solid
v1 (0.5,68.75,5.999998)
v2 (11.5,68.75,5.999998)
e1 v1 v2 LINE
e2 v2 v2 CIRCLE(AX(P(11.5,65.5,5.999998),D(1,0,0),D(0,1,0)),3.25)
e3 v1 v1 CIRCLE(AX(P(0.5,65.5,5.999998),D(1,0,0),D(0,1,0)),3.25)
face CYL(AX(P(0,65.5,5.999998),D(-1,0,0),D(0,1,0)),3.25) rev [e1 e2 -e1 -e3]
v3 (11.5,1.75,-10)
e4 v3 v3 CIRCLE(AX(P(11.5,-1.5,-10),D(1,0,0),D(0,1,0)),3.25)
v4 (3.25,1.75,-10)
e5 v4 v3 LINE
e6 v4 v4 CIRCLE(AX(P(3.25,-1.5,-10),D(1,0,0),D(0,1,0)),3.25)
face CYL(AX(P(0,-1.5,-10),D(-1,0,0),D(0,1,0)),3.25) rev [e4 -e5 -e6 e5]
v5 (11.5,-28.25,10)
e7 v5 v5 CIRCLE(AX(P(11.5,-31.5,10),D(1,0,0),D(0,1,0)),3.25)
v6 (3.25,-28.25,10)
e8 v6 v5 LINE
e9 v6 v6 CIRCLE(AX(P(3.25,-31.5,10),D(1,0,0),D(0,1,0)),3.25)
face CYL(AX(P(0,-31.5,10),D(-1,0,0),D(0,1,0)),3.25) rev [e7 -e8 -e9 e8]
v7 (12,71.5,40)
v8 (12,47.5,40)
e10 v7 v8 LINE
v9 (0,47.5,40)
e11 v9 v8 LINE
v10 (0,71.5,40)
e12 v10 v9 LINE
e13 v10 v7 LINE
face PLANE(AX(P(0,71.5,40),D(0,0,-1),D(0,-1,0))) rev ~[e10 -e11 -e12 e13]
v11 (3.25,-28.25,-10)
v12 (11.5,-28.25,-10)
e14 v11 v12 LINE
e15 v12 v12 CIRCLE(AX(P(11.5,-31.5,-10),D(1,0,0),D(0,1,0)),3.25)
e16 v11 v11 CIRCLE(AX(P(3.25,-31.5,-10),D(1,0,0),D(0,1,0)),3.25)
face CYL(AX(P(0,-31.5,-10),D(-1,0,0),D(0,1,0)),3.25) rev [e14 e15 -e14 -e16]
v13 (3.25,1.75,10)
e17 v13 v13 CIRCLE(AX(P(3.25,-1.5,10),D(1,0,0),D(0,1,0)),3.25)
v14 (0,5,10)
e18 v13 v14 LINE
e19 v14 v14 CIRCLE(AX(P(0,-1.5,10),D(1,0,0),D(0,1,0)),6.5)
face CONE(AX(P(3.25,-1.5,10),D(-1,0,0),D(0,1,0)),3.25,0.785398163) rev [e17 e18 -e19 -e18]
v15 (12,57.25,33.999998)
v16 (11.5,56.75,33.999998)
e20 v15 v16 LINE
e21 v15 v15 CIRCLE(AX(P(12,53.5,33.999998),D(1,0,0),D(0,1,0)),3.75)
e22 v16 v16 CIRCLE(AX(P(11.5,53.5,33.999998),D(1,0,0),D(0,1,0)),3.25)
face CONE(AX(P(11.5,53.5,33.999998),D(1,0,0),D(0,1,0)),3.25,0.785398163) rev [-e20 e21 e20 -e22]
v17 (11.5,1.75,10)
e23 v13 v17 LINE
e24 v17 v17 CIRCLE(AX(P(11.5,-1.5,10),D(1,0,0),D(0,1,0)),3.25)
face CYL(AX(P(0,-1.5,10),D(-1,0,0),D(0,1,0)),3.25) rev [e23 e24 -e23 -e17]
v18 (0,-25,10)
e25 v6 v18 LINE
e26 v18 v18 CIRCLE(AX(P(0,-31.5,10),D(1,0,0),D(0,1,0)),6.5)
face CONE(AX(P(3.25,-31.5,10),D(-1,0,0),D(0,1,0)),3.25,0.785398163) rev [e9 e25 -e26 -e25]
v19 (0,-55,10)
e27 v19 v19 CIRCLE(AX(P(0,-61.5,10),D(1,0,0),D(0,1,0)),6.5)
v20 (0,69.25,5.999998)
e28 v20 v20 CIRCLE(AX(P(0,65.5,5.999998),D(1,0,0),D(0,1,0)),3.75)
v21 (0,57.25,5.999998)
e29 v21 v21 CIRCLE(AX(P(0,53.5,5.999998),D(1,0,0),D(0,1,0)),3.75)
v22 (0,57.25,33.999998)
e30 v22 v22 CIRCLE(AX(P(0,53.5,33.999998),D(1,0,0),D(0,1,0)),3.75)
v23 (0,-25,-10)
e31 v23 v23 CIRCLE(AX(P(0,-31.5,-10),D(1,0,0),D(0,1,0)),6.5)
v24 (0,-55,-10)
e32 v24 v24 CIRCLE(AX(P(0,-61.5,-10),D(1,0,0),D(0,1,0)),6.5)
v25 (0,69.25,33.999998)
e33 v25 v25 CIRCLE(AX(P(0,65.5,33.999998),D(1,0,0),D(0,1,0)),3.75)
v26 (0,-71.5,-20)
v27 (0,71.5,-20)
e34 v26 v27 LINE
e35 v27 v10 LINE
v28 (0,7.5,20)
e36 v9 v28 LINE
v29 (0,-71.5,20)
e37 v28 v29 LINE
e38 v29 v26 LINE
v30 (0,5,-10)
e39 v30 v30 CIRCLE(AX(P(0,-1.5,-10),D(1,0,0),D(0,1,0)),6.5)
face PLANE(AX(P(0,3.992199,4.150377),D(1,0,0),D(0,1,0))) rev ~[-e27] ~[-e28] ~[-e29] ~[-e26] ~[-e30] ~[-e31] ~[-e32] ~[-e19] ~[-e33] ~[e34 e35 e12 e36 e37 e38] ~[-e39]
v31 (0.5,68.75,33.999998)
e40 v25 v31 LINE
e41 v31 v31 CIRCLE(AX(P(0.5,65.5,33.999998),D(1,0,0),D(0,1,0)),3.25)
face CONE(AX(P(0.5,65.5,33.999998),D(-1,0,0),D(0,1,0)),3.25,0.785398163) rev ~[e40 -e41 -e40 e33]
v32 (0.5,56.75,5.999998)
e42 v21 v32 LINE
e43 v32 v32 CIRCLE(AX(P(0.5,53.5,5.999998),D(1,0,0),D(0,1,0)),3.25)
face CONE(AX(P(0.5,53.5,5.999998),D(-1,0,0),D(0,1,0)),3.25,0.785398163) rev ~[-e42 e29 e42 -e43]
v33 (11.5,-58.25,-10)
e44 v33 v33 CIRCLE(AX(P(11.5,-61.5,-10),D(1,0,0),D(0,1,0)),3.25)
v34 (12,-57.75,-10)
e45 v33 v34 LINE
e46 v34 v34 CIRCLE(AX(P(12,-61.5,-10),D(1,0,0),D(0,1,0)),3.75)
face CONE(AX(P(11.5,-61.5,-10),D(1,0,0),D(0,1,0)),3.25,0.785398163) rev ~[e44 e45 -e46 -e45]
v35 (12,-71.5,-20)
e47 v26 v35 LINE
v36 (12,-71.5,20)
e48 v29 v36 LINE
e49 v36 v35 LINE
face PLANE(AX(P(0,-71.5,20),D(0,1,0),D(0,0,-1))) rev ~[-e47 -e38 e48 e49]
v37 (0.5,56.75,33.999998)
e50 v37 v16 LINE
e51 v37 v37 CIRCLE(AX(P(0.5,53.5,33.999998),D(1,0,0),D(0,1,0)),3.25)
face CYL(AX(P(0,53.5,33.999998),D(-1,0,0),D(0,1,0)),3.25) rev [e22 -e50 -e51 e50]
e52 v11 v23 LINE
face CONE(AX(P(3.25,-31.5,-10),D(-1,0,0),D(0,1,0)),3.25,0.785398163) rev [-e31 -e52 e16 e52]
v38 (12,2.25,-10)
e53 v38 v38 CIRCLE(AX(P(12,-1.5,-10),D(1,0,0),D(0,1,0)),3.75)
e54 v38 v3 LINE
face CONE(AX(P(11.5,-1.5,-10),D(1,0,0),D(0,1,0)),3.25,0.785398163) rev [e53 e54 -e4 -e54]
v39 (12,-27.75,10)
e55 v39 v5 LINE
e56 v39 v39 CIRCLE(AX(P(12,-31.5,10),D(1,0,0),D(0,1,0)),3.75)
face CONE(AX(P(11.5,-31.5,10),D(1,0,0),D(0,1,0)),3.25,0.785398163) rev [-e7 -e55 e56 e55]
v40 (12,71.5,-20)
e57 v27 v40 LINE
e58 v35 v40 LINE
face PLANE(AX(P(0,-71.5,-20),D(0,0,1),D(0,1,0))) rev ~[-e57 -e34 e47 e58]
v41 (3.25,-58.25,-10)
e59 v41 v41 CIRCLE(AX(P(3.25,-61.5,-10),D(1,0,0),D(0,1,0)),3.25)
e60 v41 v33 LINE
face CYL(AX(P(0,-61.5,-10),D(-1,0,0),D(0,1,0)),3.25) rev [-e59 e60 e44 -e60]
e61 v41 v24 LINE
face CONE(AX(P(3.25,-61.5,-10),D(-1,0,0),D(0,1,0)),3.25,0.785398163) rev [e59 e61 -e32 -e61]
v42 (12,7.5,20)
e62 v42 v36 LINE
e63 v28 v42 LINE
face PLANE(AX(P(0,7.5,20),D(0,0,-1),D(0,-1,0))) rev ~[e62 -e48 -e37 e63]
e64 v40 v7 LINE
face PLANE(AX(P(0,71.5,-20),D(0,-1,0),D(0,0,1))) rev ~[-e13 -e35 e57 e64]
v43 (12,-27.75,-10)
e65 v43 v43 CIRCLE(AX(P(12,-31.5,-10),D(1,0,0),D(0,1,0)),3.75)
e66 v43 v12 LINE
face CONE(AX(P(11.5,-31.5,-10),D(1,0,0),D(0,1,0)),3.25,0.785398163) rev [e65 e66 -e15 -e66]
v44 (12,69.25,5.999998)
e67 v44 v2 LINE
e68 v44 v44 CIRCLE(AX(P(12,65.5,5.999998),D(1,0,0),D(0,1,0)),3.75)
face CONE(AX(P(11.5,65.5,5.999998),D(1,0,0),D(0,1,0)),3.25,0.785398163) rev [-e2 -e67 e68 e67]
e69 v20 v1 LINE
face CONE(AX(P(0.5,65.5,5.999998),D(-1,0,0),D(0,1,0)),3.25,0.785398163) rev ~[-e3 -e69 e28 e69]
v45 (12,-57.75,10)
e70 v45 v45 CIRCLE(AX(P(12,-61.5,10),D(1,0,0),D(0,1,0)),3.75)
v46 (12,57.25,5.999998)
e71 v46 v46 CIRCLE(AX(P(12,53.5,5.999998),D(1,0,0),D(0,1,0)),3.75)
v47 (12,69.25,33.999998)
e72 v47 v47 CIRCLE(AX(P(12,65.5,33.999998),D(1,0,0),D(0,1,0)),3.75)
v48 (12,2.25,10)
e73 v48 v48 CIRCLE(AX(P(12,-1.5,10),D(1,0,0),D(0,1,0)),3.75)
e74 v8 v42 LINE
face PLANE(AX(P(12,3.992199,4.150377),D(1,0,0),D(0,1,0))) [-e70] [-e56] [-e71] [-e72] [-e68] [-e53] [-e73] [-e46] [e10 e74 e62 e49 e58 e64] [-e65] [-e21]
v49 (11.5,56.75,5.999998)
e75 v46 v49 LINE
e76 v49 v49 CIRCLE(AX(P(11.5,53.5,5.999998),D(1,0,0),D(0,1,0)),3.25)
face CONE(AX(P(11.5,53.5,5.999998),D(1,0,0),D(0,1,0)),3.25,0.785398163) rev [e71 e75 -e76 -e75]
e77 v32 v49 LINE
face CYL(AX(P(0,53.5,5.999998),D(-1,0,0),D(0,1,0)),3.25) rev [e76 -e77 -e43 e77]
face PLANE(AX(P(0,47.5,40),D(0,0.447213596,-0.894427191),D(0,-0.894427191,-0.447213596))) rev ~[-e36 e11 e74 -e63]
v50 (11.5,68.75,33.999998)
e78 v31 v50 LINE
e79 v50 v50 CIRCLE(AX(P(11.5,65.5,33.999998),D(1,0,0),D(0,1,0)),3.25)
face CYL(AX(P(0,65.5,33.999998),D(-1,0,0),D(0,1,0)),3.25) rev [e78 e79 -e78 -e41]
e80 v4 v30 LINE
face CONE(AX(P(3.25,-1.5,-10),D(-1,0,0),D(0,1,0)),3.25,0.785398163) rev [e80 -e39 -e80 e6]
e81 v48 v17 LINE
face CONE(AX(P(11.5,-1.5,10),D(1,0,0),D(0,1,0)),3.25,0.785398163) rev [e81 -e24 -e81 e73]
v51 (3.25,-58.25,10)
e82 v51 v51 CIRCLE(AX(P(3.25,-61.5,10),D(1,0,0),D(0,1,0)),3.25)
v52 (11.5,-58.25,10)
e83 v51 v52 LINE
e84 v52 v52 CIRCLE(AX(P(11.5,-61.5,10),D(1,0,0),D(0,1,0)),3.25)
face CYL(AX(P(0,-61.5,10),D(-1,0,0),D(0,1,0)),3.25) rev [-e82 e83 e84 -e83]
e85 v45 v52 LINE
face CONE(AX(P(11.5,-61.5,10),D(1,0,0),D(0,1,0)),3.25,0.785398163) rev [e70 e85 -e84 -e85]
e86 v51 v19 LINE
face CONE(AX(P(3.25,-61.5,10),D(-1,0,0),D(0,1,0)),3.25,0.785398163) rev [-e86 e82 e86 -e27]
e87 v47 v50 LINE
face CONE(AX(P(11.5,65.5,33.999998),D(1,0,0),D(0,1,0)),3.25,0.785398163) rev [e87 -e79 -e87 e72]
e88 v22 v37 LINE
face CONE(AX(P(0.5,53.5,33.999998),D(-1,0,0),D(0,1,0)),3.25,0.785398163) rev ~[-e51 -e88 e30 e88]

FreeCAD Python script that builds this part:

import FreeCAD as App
import Part
import Sketcher
from FreeCAD import Vector
Q = App.Units.Quantity


def edges_at(feature, points):
    """Names of the edges that pass closest to the given points."""
    edges = feature.Shape.Edges
    near = lambda p: min(range(len(edges)), key=lambda i: edges[i].distToShape(Part.Vertex(*p))[0])
    return sorted({f"Edge{near(p) + 1}" for p in points})


def add_polygon(sketch, points):
    """Adds a closed chain of lines whose ends are joined by coincident constraints."""
    first, n = sketch.GeometryCount, len(points)
    for a, b in zip(points, points[1:] + points[:1]):
        sketch.addGeometry(Part.LineSegment(App.Vector(*a, 0), App.Vector(*b, 0)), False)
    for i in range(n):
        sketch.addConstraint(Sketcher.Constraint("Coincident", first + i, 2, first + (i + 1) % n, 1))

doc = App.newDocument("Part")
body = doc.addObject("PartDesign::Body", "Body")

# Sketch on YZ plane
sketch1 = doc.addObject("Sketcher::SketchObject", "Sketch")
body.addObject(sketch1)
sketch1.AttachmentSupport = (doc.YZ_Plane, [""])
sketch1.MapMode = "FlatFace"
add_polygon(sketch1, [(7.5, 20), (-71.5, 20), (-71.5, -20), (71.5, -20), (71.5, 40), (47.5, 40)])  # lines 0-5
sketch1.addGeometry(Part.Circle(Vector(-61.5, -10, 0), Vector(0, 0, 1), 3.2), False)  # 6
sketch1.addGeometry(Part.Circle(Vector(-31.5, -10, 0), Vector(0, 0, 1), 3.2), False)  # 7
sketch1.addGeometry(Part.Circle(Vector(-1.5, -10, 0), Vector(0, 0, 1), 3.2), False)  # 8
sketch1.addGeometry(Part.Circle(Vector(-61.5, 10, 0), Vector(0, 0, 1), 3.2), False)  # 9
sketch1.addGeometry(Part.Circle(Vector(-31.5, 10, 0), Vector(0, 0, 1), 3.2), False)  # 10
sketch1.addGeometry(Part.Circle(Vector(-1.5, 10, 0), Vector(0, 0, 1), 3.2), False)  # 11
sketch1.addGeometry(Part.Circle(Vector(53.5, 6, 0), Vector(0, 0, 1), 3.2), False)  # 12
sketch1.addGeometry(Part.Circle(Vector(65.5, 6, 0), Vector(0, 0, 1), 3.2), False)  # 13
sketch1.addGeometry(Part.Circle(Vector(53.5, 34, 0), Vector(0, 0, 1), 3.2), False)  # 14
sketch1.addGeometry(Part.Circle(Vector(65.5, 34, 0), Vector(0, 0, 1), 3.2), False)  # 15
sketch1.addConstraint(Sketcher.Constraint("Horizontal", 0))
sketch1.addConstraint(Sketcher.Constraint("Vertical", 1))
sketch1.addConstraint(Sketcher.Constraint("Horizontal", 2))
sketch1.addConstraint(Sketcher.Constraint("Vertical", 3))
sketch1.addConstraint(Sketcher.Constraint("Horizontal", 4))
sketch1.addConstraint(Sketcher.Constraint("Equal", 6, 7))
sketch1.addConstraint(Sketcher.Constraint("Equal", 7, 8))
sketch1.addConstraint(Sketcher.Constraint("Equal", 8, 9))
sketch1.addConstraint(Sketcher.Constraint("Equal", 9, 10))
sketch1.addConstraint(Sketcher.Constraint("Equal", 10, 11))
sketch1.addConstraint(Sketcher.Constraint("Equal", 11, 12))
sketch1.addConstraint(Sketcher.Constraint("Equal", 12, 13))
sketch1.addConstraint(Sketcher.Constraint("Equal", 13, 14))
sketch1.addConstraint(Sketcher.Constraint("Equal", 14, 15))
sketch1.addConstraint(Sketcher.Constraint("Symmetric", 0, 2, 2, 2, -1, 1))
sketch1.addConstraint(Sketcher.Constraint("Symmetric", 6, 3, 9, 3, -1))
sketch1.addConstraint(Sketcher.Constraint("Symmetric", 7, 3, 10, 3, -1))
sketch1.addConstraint(Sketcher.Constraint("Symmetric", 8, 3, 11, 3, -1))
sketch1.addConstraint(Sketcher.Constraint("Horizontal", 6, 3, 7, 3))
sketch1.addConstraint(Sketcher.Constraint("Horizontal", 7, 3, 8, 3))
sketch1.addConstraint(Sketcher.Constraint("Horizontal", 12, 3, 13, 3))
sketch1.addConstraint(Sketcher.Constraint("Horizontal", 14, 3, 15, 3))
sketch1.addConstraint(Sketcher.Constraint("Vertical", 12, 3, 14, 3))
sketch1.addConstraint(Sketcher.Constraint("Vertical", 13, 3, 15, 3))
sketch1.addConstraint(Sketcher.Constraint("Diameter", 6, Q("6.5 mm")))
sketch1.addConstraint(Sketcher.Constraint("DistanceX", 0, 2, 0, 1, Q("79 mm")))
sketch1.addConstraint(Sketcher.Constraint("DistanceX", 2, 1, 2, 2, Q("143 mm")))
sketch1.addConstraint(Sketcher.Constraint("DistanceX", 4, 2, 4, 1, Q("24 mm")))
sketch1.addConstraint(Sketcher.Constraint("DistanceY", 1, 2, 1, 1, Q("40 mm")))
sketch1.addConstraint(Sketcher.Constraint("DistanceY", 3, 1, 3, 2, Q("60 mm")))
sketch1.addConstraint(Sketcher.Constraint("DistanceY", 6, 3, -1, 1, Q("10 mm")))
sketch1.addConstraint(Sketcher.Constraint("DistanceX", 6, 3, 7, 3, Q("30 mm")))
sketch1.addConstraint(Sketcher.Constraint("DistanceX", 7, 3, 8, 3, Q("30 mm")))
sketch1.addConstraint(Sketcher.Constraint("DistanceX", 11, 3, 12, 3, Q("55 mm")))
sketch1.addConstraint(Sketcher.Constraint("DistanceX", 12, 3, 13, 3, Q("12 mm")))
sketch1.addConstraint(Sketcher.Constraint("DistanceY", 12, 3, 14, 3, Q("28 mm")))
sketch1.addConstraint(Sketcher.Constraint("DistanceX", 0, 2, 9, 3, Q("10 mm")))
sketch1.addConstraint(Sketcher.Constraint("DistanceY", -1, 1, 12, 3, Q("5.999998 mm")))
pad1 = doc.addObject("PartDesign::Pad", "Pad")
body.addObject(pad1)
pad1.Profile = sketch1
pad1.Length = 12
doc.recompute()

chamfer = doc.addObject("PartDesign::Chamfer", "Chamfer")
body.addObject(chamfer)
chamfer.Base = (pad1, edges_at(pad1, [
    (0, -4.75, 10),
    (0, -4.75, -10),
    (0, -34.75, -10),
    (0, -34.75, 10),
    (0, -64.75, -10),
    (0, -64.75, 10),
]))
chamfer.Size = 3.25
doc.recompute()

chamfer2 = doc.addObject("PartDesign::Chamfer", "Chamfer001")
body.addObject(chamfer2)
chamfer2.Base = (chamfer, edges_at(chamfer, [
    (6, 68.75, 34),
    (0, 62.25, 34),
    (12, 62.25, 34),
    (6, 56.75, 34),
    (0, 50.25, 34),
    (12, 50.25, 34),
    (6, 56.75, 6),
    (0, 50.25, 6),
    (12, 50.25, 6),
    (6, 68.75, 6),
    (0, 62.25, 6),
    (12, 62.25, 6),
    (12, -64.75, 10),
    (12, -34.75, 10),
    (12, -4.75, 10),
    (12, -4.75, -10),
    (12, -34.75, -10),
    (12, -64.75, -10),
]))
chamfer2.Size = 0.5

doc.recompute()
